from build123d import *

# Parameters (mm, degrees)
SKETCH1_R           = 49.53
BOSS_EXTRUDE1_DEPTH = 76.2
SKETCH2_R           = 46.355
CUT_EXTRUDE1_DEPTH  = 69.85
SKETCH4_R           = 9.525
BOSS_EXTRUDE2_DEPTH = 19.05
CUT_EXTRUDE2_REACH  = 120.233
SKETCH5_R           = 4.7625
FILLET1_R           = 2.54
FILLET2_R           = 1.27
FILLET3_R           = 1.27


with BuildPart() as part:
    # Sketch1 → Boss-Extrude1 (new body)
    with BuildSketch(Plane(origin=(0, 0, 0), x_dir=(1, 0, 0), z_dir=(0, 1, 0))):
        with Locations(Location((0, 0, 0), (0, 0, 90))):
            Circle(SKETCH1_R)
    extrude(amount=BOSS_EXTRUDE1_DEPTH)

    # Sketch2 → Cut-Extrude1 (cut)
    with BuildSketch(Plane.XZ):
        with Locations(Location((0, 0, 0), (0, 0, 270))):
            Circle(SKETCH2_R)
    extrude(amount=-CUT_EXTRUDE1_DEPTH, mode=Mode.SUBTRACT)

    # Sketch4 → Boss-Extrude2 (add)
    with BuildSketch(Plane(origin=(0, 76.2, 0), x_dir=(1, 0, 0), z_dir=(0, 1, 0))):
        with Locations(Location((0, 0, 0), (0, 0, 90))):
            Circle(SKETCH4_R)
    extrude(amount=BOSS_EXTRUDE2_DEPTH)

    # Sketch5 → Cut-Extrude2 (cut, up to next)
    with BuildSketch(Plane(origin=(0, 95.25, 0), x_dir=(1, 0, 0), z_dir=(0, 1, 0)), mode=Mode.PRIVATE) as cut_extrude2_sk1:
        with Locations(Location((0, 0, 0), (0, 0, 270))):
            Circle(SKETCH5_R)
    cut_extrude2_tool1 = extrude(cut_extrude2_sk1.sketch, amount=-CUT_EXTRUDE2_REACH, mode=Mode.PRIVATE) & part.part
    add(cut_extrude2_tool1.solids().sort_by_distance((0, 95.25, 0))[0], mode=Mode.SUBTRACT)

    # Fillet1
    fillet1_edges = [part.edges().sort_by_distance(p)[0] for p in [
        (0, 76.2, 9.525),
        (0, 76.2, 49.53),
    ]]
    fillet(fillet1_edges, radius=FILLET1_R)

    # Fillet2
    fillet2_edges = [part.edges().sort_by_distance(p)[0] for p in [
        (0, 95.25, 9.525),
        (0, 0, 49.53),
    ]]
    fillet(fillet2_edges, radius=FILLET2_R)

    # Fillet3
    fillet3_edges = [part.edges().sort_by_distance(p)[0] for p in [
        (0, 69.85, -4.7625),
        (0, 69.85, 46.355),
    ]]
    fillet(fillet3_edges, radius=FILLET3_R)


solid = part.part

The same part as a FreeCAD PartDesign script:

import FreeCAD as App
import Part
import Sketcher
Q = App.Units.Quantity


def edges_at(feature, points):
    """Names of the edges that pass closest to the given points."""
    edges = feature.Shape.Edges
    near = lambda p: min(range(len(edges)), key=lambda i: edges[i].distToShape(Part.Vertex(*p))[0])
    return sorted({f"Edge{near(p) + 1}" for p in points})

doc = App.newDocument("Part")
body = doc.addObject("PartDesign::Body", "Body")

sketch1 = body.newObject("Sketcher::SketchObject", "Sketch")
sketch1.AttachmentSupport = (doc.getObject("XZ_Plane"), [""])
sketch1.MapMode = "FlatFace"
sketch1.addGeometry(Part.Circle(App.Vector(0, 0, 0), App.Vector(0, 0, 1), 50), False)
sketch1.addConstraint([
    Sketcher.Constraint("Coincident", 0, 3, -1, 1),
    Sketcher.Constraint("Diameter", 0, Q("3.9 in")),
])
pad1 = body.newObject("PartDesign::Pad", "Pad")
pad1.Profile = sketch1
pad1.Length = Q("3 in")
pad1.Reversed = True

sketch2 = body.newObject("Sketcher::SketchObject", "Sketch001")
sketch2.AttachmentSupport = (doc.getObject("XZ_Plane"), [""])
sketch2.MapMode = "FlatFace"
sketch2.addGeometry(Part.Circle(App.Vector(0, 0, 0), App.Vector(0, 0, 1), 46), False)
sketch2.addConstraint([
    Sketcher.Constraint("Coincident", 0, 3, -1, 1),
    Sketcher.Constraint("Diameter", 0, Q("3.65 in")),
])
pocket1 = body.newObject("PartDesign::Pocket", "Pocket")
pocket1.Profile = sketch2
pocket1.Length = Q("2.75 in")

sketch3 = body.newObject("Sketcher::SketchObject", "Sketch002")
sketch3.AttachmentSupport = (doc.getObject("XZ_Plane"), [""])
sketch3.MapMode = "FlatFace"
sketch3.AttachmentOffset = App.Placement(App.Vector(0, 0, -3 * 25.4), App.Rotation())
sketch3.addGeometry(Part.Circle(App.Vector(0, 0, 0), App.Vector(0, 0, 1), 10), False)
sketch3.addConstraint([
    Sketcher.Constraint("Coincident", 0, 3, -1, 1),
    Sketcher.Constraint("Diameter", 0, Q("0.75 in")),
])
pad2 = body.newObject("PartDesign::Pad", "Pad001")
pad2.Profile = sketch3
pad2.Length = Q("0.75 in")
pad2.Reversed = True

sketch4 = body.newObject("Sketcher::SketchObject", "Sketch003")
sketch4.AttachmentSupport = (doc.getObject("XZ_Plane"), [""])
sketch4.MapMode = "FlatFace"
sketch4.AttachmentOffset = App.Placement(App.Vector(0, 0, -3.75 * 25.4), App.Rotation())
sketch4.addGeometry(Part.Circle(App.Vector(0, 0, 0), App.Vector(0, 0, 1), 4.8), False)
sketch4.addConstraint([
    Sketcher.Constraint("Coincident", 0, 3, -1, 1),
    Sketcher.Constraint("Diameter", 0, Q("0.375 in")),
])
pocket2 = body.newObject("PartDesign::Pocket", "Pocket001")
pocket2.Profile = sketch4
pocket2.Type = "UpToFirst"
pocket2.Reversed = True
doc.recompute()

fillet = body.newObject("PartDesign::Fillet", "Fillet")
fillet.Base = (pocket2, edges_at(pocket2, [(0, 76.2, 9.525), (0, 76.2, 49.53)]))
fillet.Radius = Q("0.1 in")
doc.recompute()

fillet2 = body.newObject("PartDesign::Fillet", "Fillet001")
fillet2.Base = (fillet, edges_at(fillet, [(0, 95.25, 9.525), (0, 0, 49.53)]))
fillet2.Radius = Q("0.05 in")
doc.recompute()

fillet3 = body.newObject("PartDesign::Fillet", "Fillet002")
fillet3.Base = (fillet2, edges_at(fillet2, [(0, 69.85, -4.763), (0, 69.85, 46.355)]))
fillet3.Radius = Q("0.05 in")

doc.recompute()
